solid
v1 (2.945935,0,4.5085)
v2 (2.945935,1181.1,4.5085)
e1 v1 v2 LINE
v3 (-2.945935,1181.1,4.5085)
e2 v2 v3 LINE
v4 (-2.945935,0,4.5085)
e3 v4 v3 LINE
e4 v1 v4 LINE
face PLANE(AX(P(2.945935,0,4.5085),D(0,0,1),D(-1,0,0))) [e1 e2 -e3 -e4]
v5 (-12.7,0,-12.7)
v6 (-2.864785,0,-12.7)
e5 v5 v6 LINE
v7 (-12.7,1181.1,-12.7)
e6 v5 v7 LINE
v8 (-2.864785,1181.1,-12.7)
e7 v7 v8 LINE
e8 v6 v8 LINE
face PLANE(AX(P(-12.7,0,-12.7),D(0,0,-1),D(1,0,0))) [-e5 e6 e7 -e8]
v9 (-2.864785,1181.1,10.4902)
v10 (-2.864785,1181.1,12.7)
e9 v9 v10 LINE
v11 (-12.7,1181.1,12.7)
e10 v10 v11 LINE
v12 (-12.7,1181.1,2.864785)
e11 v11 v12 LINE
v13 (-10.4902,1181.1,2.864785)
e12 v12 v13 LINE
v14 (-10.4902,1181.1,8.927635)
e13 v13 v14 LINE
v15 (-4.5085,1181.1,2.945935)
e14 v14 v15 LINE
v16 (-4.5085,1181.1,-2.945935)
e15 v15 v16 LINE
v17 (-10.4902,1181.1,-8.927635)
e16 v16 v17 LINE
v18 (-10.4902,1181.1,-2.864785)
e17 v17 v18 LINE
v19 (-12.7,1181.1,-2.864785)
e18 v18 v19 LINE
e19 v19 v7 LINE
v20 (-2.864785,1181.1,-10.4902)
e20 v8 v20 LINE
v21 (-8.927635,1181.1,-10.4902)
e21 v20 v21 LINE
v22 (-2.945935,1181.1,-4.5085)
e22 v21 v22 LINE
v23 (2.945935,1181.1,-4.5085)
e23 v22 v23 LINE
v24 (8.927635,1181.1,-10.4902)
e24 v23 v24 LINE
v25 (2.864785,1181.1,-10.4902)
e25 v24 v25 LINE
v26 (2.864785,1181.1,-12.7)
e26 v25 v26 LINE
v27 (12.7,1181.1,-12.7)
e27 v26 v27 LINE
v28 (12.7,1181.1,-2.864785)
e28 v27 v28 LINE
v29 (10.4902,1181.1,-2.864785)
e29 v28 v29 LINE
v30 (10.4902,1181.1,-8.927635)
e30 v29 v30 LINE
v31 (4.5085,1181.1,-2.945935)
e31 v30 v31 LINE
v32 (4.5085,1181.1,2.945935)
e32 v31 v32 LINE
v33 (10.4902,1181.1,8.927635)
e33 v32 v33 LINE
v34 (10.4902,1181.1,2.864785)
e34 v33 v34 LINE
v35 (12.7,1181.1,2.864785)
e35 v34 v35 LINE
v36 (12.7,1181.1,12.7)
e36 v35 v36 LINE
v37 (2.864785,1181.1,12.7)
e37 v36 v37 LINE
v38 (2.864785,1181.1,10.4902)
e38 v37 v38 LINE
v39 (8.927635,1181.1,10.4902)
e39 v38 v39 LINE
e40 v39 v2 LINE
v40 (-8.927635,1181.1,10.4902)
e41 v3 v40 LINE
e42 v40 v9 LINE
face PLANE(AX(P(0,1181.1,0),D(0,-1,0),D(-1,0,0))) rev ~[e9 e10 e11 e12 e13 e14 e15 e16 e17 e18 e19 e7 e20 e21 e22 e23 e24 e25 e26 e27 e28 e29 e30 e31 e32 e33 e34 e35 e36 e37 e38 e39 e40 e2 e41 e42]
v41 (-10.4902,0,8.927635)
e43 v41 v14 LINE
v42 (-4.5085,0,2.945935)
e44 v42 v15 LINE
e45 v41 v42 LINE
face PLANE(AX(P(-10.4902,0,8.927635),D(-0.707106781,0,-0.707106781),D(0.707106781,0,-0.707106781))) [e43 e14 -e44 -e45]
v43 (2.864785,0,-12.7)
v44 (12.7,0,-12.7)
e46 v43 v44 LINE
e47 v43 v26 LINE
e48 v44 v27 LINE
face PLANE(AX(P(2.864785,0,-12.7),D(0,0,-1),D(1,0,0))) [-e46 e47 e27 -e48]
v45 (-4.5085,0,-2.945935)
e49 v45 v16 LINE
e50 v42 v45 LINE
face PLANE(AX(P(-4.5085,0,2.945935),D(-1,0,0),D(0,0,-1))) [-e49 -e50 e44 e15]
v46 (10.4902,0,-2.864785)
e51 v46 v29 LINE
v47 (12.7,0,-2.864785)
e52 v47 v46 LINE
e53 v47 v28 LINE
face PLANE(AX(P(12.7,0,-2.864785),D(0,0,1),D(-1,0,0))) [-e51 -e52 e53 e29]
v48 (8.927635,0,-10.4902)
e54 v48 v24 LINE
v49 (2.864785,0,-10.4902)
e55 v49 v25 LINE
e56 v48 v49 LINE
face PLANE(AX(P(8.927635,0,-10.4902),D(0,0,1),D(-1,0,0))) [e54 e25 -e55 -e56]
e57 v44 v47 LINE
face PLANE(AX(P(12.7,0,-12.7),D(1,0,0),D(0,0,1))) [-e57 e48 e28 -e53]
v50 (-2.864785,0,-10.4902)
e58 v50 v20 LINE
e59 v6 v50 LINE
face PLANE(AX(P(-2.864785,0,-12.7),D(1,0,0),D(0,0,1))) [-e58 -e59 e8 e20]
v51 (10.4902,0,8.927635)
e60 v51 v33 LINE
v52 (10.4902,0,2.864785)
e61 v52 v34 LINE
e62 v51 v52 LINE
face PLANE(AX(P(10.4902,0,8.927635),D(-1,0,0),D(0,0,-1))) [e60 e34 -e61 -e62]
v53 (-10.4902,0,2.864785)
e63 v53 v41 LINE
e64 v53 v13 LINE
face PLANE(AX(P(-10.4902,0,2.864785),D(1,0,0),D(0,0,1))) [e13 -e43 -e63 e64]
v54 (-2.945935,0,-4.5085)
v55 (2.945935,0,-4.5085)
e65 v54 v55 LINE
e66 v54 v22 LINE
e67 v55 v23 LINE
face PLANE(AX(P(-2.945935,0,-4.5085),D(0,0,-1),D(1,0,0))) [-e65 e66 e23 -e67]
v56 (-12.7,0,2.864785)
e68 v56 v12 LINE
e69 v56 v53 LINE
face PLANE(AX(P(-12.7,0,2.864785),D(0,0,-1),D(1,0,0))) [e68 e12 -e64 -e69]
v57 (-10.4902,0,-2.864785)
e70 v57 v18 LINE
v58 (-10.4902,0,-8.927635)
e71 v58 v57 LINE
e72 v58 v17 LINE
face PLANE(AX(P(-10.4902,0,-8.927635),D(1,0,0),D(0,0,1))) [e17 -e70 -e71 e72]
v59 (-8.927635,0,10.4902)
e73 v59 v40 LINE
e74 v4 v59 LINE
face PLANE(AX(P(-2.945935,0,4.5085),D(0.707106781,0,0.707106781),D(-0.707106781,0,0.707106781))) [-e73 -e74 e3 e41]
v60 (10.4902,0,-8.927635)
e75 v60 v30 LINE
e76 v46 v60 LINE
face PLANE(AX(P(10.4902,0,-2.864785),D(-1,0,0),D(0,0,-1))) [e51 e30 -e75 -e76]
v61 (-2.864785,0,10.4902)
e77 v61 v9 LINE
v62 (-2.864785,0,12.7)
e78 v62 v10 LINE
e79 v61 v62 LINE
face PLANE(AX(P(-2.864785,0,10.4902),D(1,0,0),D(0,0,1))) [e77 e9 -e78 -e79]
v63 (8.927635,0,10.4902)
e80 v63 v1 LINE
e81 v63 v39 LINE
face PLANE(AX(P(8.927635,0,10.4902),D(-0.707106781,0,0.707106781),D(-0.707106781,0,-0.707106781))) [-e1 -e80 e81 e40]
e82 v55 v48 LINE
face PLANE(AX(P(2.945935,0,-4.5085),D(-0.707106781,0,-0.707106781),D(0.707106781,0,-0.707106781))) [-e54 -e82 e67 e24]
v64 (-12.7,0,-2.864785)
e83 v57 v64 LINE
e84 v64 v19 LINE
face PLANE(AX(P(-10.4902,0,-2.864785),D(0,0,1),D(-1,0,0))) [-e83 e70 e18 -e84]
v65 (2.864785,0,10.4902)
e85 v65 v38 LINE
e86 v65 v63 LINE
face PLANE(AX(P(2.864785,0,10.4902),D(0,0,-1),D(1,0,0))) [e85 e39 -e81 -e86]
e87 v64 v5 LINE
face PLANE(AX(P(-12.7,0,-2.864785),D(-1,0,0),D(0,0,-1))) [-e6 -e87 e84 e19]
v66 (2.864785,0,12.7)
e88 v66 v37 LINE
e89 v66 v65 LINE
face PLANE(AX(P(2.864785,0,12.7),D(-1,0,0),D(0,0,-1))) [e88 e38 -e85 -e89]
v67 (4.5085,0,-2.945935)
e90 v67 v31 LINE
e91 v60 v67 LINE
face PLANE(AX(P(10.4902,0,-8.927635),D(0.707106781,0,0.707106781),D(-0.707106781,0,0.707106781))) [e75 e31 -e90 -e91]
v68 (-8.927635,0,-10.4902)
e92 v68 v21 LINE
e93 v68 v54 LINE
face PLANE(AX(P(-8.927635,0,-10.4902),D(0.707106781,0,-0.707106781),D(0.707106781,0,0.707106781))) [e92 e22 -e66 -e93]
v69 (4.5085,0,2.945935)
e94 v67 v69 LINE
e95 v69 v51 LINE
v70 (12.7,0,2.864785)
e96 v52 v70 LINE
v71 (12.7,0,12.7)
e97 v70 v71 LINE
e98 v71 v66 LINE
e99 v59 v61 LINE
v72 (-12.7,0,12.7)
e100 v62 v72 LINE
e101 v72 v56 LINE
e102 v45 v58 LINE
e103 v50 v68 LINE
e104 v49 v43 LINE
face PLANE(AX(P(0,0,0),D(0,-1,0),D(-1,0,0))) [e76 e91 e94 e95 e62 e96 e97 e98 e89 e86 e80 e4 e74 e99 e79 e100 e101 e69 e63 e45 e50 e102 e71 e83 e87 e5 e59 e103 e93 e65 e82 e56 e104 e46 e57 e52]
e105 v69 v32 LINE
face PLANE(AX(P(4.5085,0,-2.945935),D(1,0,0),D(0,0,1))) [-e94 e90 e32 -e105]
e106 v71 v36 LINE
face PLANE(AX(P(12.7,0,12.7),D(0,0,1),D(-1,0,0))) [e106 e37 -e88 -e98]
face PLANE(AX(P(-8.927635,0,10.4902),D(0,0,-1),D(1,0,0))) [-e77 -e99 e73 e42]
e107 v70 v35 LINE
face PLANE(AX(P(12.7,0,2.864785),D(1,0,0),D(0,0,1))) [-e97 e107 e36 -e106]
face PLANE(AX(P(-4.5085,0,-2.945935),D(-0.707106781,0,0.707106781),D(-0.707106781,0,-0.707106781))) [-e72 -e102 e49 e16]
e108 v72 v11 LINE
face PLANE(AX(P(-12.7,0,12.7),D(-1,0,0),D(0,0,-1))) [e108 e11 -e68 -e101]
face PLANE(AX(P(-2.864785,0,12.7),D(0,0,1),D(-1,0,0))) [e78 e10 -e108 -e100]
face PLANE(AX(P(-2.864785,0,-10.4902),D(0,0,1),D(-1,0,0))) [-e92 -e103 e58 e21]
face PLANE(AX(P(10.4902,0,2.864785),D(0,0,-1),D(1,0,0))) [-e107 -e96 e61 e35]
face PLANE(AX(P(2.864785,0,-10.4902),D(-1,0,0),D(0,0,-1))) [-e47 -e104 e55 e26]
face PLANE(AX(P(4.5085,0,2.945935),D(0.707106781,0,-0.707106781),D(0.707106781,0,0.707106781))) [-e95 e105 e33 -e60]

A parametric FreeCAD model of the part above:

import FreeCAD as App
import Part
import Sketcher
from FreeCAD import Vector
Q = App.Units.Quantity

doc = App.newDocument("Part")
body = doc.addObject("PartDesign::Body", "Body")

# Sketch on XZ plane
sketch1 = doc.addObject("Sketcher::SketchObject", "Sketch")
body.addObject(sketch1)
sketch1.AttachmentSupport = (doc.XZ_Plane, [""])
sketch1.MapMode = "FlatFace"
sketch1.addGeometry([
    Part.LineSegment(Vector(-2.9, -12.7, 0), Vector(-12.7, -12.7, 0)),  # 0
    Part.LineSegment(Vector(-12.7, -12.7, 0), Vector(-12.7, -2.9, 0)),  # 1
    Part.LineSegment(Vector(-12.7, -2.9, 0), Vector(-10.5, -2.9, 0)),  # 2
    Part.LineSegment(Vector(-10.5, -2.9, 0), Vector(-10.5, -8.9, 0)),  # 3
    Part.LineSegment(Vector(-10.5, -8.9, 0), Vector(-4.5, -2.9, 0)),  # 4
    Part.LineSegment(Vector(-4.5, -2.9, 0), Vector(-4.5, 2.9, 0)),  # 5
    Part.LineSegment(Vector(-4.5, 2.9, 0), Vector(-10.5, 8.9, 0)),  # 6
    Part.LineSegment(Vector(-10.5, 8.9, 0), Vector(-10.5, 2.9, 0)),  # 7
    Part.LineSegment(Vector(-10.5, 2.9, 0), Vector(-12.7, 2.9, 0)),  # 8
    Part.LineSegment(Vector(-12.7, 2.9, 0), Vector(-12.7, 12.7, 0)),  # 9
    Part.LineSegment(Vector(-12.7, 12.7, 0), Vector(-2.9, 12.7, 0)),  # 10
    Part.LineSegment(Vector(-2.9, 12.7, 0), Vector(-2.9, 10.5, 0)),  # 11
    Part.LineSegment(Vector(-2.9, 10.5, 0), Vector(-8.9, 10.5, 0)),  # 12
    Part.LineSegment(Vector(-8.9, 10.5, 0), Vector(-2.9, 4.5, 0)),  # 13
    Part.LineSegment(Vector(-2.9, 4.5, 0), Vector(2.9, 4.5, 0)),  # 14
    Part.LineSegment(Vector(2.9, 4.5, 0), Vector(8.9, 10.5, 0)),  # 15
    Part.LineSegment(Vector(8.9, 10.5, 0), Vector(2.9, 10.5, 0)),  # 16
    Part.LineSegment(Vector(2.9, 10.5, 0), Vector(2.9, 12.7, 0)),  # 17
    Part.LineSegment(Vector(2.9, 12.7, 0), Vector(12.7, 12.7, 0)),  # 18
    Part.LineSegment(Vector(12.7, 12.7, 0), Vector(12.7, 2.9, 0)),  # 19
    Part.LineSegment(Vector(12.7, 2.9, 0), Vector(10.5, 2.9, 0)),  # 20
    Part.LineSegment(Vector(10.5, 2.9, 0), Vector(10.5, 8.9, 0)),  # 21
    Part.LineSegment(Vector(10.5, 8.9, 0), Vector(4.5, 2.9, 0)),  # 22
    Part.LineSegment(Vector(4.5, 2.9, 0), Vector(4.5, -2.9, 0)),  # 23
    Part.LineSegment(Vector(4.5, -2.9, 0), Vector(10.5, -8.9, 0)),  # 24
    Part.LineSegment(Vector(10.5, -8.9, 0), Vector(10.5, -2.9, 0)),  # 25
    Part.LineSegment(Vector(10.5, -2.9, 0), Vector(12.7, -2.9, 0)),  # 26
    Part.LineSegment(Vector(12.7, -2.9, 0), Vector(12.7, -12.7, 0)),  # 27
    Part.LineSegment(Vector(12.7, -12.7, 0), Vector(2.9, -12.7, 0)),  # 28
    Part.LineSegment(Vector(2.9, -12.7, 0), Vector(2.9, -10.5, 0)),  # 29
    Part.LineSegment(Vector(2.9, -10.5, 0), Vector(8.9, -10.5, 0)),  # 30
    Part.LineSegment(Vector(8.9, -10.5, 0), Vector(2.9, -4.5, 0)),  # 31
    Part.LineSegment(Vector(2.9, -4.5, 0), Vector(-2.9, -4.5, 0)),  # 32
    Part.LineSegment(Vector(-2.9, -4.5, 0), Vector(-8.9, -10.5, 0)),  # 33
    Part.LineSegment(Vector(-8.9, -10.5, 0), Vector(-2.9, -10.5, 0)),  # 34
    Part.LineSegment(Vector(-2.9, -10.5, 0), Vector(-2.9, -12.7, 0)),  # 35
], False)
sketch1.addConstraint([
    Sketcher.Constraint("Coincident", 0, 2, 1, 1),
    Sketcher.Constraint("Coincident", 1, 2, 2, 1),
    Sketcher.Constraint("Coincident", 2, 2, 3, 1),
    Sketcher.Constraint("Coincident", 3, 2, 4, 1),
    Sketcher.Constraint("Coincident", 4, 2, 5, 1),
    Sketcher.Constraint("Coincident", 5, 2, 6, 1),
    Sketcher.Constraint("Coincident", 6, 2, 7, 1),
    Sketcher.Constraint("Coincident", 7, 2, 8, 1),
    Sketcher.Constraint("Coincident", 8, 2, 9, 1),
    Sketcher.Constraint("Coincident", 9, 2, 10, 1),
    Sketcher.Constraint("Coincident", 10, 2, 11, 1),
    Sketcher.Constraint("Coincident", 11, 2, 12, 1),
    Sketcher.Constraint("Coincident", 12, 2, 13, 1),
    Sketcher.Constraint("Coincident", 13, 2, 14, 1),
    Sketcher.Constraint("Coincident", 14, 2, 15, 1),
    Sketcher.Constraint("Coincident", 15, 2, 16, 1),
    Sketcher.Constraint("Coincident", 16, 2, 17, 1),
    Sketcher.Constraint("Coincident", 17, 2, 18, 1),
    Sketcher.Constraint("Coincident", 18, 2, 19, 1),
    Sketcher.Constraint("Coincident", 19, 2, 20, 1),
    Sketcher.Constraint("Coincident", 20, 2, 21, 1),
    Sketcher.Constraint("Coincident", 21, 2, 22, 1),
    Sketcher.Constraint("Coincident", 22, 2, 23, 1),
    Sketcher.Constraint("Coincident", 23, 2, 24, 1),
    Sketcher.Constraint("Coincident", 24, 2, 25, 1),
    Sketcher.Constraint("Coincident", 25, 2, 26, 1),
    Sketcher.Constraint("Coincident", 26, 2, 27, 1),
    Sketcher.Constraint("Coincident", 27, 2, 28, 1),
    Sketcher.Constraint("Coincident", 28, 2, 29, 1),
    Sketcher.Constraint("Coincident", 29, 2, 30, 1),
    Sketcher.Constraint("Coincident", 30, 2, 31, 1),
    Sketcher.Constraint("Coincident", 31, 2, 32, 1),
    Sketcher.Constraint("Coincident", 32, 2, 33, 1),
    Sketcher.Constraint("Coincident", 33, 2, 34, 1),
    Sketcher.Constraint("Coincident", 34, 2, 35, 1),
    Sketcher.Constraint("Coincident", 35, 2, 0, 1),
    Sketcher.Constraint("Horizontal", 0),
    Sketcher.Constraint("Vertical", 1),
    Sketcher.Constraint("Horizontal", 2),
    Sketcher.Constraint("Vertical", 3),
    Sketcher.Constraint("Vertical", 5),
    Sketcher.Constraint("Vertical", 7),
    Sketcher.Constraint("Horizontal", 8),
    Sketcher.Constraint("Vertical", 9),
    Sketcher.Constraint("Horizontal", 10),
    Sketcher.Constraint("Vertical", 11),
    Sketcher.Constraint("Horizontal", 12),
    Sketcher.Constraint("Horizontal", 14),
    Sketcher.Constraint("Horizontal", 16),
    Sketcher.Constraint("Vertical", 17),
    Sketcher.Constraint("Horizontal", 18),
    Sketcher.Constraint("Vertical", 19),
    Sketcher.Constraint("Horizontal", 20),
    Sketcher.Constraint("Vertical", 21),
    Sketcher.Constraint("Vertical", 23),
    Sketcher.Constraint("Vertical", 25),
    Sketcher.Constraint("Horizontal", 26),
    Sketcher.Constraint("Vertical", 27),
    Sketcher.Constraint("Horizontal", 28),
    Sketcher.Constraint("Vertical", 29),
    Sketcher.Constraint("Horizontal", 30),
    Sketcher.Constraint("Horizontal", 32),
    Sketcher.Constraint("Horizontal", 34),
    Sketcher.Constraint("Vertical", 35),
    Sketcher.Constraint("Symmetric", 0, 2, 18, 2, -1, 1),
    Sketcher.Constraint("Symmetric", 2, 2, 20, 2, -1, 1),
    Sketcher.Constraint("Symmetric", 4, 2, 22, 2, -1, 1),
    Sketcher.Constraint("Symmetric", 6, 2, 24, 2, -1, 1),
    Sketcher.Constraint("Symmetric", 8, 2, 26, 2, -1, 1),
    Sketcher.Constraint("Symmetric", 10, 2, 28, 2, -1, 1),
    Sketcher.Constraint("Symmetric", 12, 2, 30, 2, -1, 1),
    Sketcher.Constraint("Symmetric", 13, 2, 31, 2, -1, 1),
    Sketcher.Constraint("Symmetric", 15, 2, 33, 2, -1, 1),
    Sketcher.Constraint("Symmetric", 12, 2, 15, 2, -2),
    Sketcher.Constraint("Symmetric", 10, 2, 17, 2, -2),
    Sketcher.Constraint("Symmetric", 8, 2, 19, 2, -2),
    Sketcher.Constraint("Symmetric", 6, 2, 21, 2, -2),
    Sketcher.Constraint("Perpendicular", 4, 6),
    Sketcher.Constraint("Parallel", 6, 13),
    Sketcher.Constraint("Perpendicular", 13, 15),
    Sketcher.Constraint("Parallel", 15, 22),
    Sketcher.Constraint("Perpendicular", 22, 24),
    Sketcher.Constraint("Perpendicular", 31, 33),
    Sketcher.Constraint("Horizontal", 5, 2, 22, 2),
    Sketcher.Constraint("Vertical", 11, 2, 34, 2),
    Sketcher.Constraint("Equal", 28, 1),
    Sketcher.Constraint("Equal", 34, 3),
    Sketcher.Constraint("Equal", 32, 5),
    Sketcher.Constraint("Equal", 26, 11),
    Sketcher.Constraint("Equal", 6, 13),
    Sketcher.Constraint("DistanceX", 0, 2, -1, 1, Q("0.5 in")),
    Sketcher.Constraint("DistanceX", 2, 1, 2, 2, Q("0.087 in")),
    Sketcher.Constraint("DistanceX", 4, 2, 23, 2, Q("0.355 in")),
    Sketcher.Constraint("DistanceX", 12, 2, 12, 1, Q("6.06285 mm")),
    Sketcher.Constraint("DistanceX", 14, 1, 14, 2, Q("5.891871 mm")),
])
pad1 = doc.addObject("PartDesign::Pad", "Pad")
body.addObject(pad1)
pad1.Profile = sketch1
pad1.Length = Q("46.5 in")
pad1.Reversed = True

doc.recompute()
